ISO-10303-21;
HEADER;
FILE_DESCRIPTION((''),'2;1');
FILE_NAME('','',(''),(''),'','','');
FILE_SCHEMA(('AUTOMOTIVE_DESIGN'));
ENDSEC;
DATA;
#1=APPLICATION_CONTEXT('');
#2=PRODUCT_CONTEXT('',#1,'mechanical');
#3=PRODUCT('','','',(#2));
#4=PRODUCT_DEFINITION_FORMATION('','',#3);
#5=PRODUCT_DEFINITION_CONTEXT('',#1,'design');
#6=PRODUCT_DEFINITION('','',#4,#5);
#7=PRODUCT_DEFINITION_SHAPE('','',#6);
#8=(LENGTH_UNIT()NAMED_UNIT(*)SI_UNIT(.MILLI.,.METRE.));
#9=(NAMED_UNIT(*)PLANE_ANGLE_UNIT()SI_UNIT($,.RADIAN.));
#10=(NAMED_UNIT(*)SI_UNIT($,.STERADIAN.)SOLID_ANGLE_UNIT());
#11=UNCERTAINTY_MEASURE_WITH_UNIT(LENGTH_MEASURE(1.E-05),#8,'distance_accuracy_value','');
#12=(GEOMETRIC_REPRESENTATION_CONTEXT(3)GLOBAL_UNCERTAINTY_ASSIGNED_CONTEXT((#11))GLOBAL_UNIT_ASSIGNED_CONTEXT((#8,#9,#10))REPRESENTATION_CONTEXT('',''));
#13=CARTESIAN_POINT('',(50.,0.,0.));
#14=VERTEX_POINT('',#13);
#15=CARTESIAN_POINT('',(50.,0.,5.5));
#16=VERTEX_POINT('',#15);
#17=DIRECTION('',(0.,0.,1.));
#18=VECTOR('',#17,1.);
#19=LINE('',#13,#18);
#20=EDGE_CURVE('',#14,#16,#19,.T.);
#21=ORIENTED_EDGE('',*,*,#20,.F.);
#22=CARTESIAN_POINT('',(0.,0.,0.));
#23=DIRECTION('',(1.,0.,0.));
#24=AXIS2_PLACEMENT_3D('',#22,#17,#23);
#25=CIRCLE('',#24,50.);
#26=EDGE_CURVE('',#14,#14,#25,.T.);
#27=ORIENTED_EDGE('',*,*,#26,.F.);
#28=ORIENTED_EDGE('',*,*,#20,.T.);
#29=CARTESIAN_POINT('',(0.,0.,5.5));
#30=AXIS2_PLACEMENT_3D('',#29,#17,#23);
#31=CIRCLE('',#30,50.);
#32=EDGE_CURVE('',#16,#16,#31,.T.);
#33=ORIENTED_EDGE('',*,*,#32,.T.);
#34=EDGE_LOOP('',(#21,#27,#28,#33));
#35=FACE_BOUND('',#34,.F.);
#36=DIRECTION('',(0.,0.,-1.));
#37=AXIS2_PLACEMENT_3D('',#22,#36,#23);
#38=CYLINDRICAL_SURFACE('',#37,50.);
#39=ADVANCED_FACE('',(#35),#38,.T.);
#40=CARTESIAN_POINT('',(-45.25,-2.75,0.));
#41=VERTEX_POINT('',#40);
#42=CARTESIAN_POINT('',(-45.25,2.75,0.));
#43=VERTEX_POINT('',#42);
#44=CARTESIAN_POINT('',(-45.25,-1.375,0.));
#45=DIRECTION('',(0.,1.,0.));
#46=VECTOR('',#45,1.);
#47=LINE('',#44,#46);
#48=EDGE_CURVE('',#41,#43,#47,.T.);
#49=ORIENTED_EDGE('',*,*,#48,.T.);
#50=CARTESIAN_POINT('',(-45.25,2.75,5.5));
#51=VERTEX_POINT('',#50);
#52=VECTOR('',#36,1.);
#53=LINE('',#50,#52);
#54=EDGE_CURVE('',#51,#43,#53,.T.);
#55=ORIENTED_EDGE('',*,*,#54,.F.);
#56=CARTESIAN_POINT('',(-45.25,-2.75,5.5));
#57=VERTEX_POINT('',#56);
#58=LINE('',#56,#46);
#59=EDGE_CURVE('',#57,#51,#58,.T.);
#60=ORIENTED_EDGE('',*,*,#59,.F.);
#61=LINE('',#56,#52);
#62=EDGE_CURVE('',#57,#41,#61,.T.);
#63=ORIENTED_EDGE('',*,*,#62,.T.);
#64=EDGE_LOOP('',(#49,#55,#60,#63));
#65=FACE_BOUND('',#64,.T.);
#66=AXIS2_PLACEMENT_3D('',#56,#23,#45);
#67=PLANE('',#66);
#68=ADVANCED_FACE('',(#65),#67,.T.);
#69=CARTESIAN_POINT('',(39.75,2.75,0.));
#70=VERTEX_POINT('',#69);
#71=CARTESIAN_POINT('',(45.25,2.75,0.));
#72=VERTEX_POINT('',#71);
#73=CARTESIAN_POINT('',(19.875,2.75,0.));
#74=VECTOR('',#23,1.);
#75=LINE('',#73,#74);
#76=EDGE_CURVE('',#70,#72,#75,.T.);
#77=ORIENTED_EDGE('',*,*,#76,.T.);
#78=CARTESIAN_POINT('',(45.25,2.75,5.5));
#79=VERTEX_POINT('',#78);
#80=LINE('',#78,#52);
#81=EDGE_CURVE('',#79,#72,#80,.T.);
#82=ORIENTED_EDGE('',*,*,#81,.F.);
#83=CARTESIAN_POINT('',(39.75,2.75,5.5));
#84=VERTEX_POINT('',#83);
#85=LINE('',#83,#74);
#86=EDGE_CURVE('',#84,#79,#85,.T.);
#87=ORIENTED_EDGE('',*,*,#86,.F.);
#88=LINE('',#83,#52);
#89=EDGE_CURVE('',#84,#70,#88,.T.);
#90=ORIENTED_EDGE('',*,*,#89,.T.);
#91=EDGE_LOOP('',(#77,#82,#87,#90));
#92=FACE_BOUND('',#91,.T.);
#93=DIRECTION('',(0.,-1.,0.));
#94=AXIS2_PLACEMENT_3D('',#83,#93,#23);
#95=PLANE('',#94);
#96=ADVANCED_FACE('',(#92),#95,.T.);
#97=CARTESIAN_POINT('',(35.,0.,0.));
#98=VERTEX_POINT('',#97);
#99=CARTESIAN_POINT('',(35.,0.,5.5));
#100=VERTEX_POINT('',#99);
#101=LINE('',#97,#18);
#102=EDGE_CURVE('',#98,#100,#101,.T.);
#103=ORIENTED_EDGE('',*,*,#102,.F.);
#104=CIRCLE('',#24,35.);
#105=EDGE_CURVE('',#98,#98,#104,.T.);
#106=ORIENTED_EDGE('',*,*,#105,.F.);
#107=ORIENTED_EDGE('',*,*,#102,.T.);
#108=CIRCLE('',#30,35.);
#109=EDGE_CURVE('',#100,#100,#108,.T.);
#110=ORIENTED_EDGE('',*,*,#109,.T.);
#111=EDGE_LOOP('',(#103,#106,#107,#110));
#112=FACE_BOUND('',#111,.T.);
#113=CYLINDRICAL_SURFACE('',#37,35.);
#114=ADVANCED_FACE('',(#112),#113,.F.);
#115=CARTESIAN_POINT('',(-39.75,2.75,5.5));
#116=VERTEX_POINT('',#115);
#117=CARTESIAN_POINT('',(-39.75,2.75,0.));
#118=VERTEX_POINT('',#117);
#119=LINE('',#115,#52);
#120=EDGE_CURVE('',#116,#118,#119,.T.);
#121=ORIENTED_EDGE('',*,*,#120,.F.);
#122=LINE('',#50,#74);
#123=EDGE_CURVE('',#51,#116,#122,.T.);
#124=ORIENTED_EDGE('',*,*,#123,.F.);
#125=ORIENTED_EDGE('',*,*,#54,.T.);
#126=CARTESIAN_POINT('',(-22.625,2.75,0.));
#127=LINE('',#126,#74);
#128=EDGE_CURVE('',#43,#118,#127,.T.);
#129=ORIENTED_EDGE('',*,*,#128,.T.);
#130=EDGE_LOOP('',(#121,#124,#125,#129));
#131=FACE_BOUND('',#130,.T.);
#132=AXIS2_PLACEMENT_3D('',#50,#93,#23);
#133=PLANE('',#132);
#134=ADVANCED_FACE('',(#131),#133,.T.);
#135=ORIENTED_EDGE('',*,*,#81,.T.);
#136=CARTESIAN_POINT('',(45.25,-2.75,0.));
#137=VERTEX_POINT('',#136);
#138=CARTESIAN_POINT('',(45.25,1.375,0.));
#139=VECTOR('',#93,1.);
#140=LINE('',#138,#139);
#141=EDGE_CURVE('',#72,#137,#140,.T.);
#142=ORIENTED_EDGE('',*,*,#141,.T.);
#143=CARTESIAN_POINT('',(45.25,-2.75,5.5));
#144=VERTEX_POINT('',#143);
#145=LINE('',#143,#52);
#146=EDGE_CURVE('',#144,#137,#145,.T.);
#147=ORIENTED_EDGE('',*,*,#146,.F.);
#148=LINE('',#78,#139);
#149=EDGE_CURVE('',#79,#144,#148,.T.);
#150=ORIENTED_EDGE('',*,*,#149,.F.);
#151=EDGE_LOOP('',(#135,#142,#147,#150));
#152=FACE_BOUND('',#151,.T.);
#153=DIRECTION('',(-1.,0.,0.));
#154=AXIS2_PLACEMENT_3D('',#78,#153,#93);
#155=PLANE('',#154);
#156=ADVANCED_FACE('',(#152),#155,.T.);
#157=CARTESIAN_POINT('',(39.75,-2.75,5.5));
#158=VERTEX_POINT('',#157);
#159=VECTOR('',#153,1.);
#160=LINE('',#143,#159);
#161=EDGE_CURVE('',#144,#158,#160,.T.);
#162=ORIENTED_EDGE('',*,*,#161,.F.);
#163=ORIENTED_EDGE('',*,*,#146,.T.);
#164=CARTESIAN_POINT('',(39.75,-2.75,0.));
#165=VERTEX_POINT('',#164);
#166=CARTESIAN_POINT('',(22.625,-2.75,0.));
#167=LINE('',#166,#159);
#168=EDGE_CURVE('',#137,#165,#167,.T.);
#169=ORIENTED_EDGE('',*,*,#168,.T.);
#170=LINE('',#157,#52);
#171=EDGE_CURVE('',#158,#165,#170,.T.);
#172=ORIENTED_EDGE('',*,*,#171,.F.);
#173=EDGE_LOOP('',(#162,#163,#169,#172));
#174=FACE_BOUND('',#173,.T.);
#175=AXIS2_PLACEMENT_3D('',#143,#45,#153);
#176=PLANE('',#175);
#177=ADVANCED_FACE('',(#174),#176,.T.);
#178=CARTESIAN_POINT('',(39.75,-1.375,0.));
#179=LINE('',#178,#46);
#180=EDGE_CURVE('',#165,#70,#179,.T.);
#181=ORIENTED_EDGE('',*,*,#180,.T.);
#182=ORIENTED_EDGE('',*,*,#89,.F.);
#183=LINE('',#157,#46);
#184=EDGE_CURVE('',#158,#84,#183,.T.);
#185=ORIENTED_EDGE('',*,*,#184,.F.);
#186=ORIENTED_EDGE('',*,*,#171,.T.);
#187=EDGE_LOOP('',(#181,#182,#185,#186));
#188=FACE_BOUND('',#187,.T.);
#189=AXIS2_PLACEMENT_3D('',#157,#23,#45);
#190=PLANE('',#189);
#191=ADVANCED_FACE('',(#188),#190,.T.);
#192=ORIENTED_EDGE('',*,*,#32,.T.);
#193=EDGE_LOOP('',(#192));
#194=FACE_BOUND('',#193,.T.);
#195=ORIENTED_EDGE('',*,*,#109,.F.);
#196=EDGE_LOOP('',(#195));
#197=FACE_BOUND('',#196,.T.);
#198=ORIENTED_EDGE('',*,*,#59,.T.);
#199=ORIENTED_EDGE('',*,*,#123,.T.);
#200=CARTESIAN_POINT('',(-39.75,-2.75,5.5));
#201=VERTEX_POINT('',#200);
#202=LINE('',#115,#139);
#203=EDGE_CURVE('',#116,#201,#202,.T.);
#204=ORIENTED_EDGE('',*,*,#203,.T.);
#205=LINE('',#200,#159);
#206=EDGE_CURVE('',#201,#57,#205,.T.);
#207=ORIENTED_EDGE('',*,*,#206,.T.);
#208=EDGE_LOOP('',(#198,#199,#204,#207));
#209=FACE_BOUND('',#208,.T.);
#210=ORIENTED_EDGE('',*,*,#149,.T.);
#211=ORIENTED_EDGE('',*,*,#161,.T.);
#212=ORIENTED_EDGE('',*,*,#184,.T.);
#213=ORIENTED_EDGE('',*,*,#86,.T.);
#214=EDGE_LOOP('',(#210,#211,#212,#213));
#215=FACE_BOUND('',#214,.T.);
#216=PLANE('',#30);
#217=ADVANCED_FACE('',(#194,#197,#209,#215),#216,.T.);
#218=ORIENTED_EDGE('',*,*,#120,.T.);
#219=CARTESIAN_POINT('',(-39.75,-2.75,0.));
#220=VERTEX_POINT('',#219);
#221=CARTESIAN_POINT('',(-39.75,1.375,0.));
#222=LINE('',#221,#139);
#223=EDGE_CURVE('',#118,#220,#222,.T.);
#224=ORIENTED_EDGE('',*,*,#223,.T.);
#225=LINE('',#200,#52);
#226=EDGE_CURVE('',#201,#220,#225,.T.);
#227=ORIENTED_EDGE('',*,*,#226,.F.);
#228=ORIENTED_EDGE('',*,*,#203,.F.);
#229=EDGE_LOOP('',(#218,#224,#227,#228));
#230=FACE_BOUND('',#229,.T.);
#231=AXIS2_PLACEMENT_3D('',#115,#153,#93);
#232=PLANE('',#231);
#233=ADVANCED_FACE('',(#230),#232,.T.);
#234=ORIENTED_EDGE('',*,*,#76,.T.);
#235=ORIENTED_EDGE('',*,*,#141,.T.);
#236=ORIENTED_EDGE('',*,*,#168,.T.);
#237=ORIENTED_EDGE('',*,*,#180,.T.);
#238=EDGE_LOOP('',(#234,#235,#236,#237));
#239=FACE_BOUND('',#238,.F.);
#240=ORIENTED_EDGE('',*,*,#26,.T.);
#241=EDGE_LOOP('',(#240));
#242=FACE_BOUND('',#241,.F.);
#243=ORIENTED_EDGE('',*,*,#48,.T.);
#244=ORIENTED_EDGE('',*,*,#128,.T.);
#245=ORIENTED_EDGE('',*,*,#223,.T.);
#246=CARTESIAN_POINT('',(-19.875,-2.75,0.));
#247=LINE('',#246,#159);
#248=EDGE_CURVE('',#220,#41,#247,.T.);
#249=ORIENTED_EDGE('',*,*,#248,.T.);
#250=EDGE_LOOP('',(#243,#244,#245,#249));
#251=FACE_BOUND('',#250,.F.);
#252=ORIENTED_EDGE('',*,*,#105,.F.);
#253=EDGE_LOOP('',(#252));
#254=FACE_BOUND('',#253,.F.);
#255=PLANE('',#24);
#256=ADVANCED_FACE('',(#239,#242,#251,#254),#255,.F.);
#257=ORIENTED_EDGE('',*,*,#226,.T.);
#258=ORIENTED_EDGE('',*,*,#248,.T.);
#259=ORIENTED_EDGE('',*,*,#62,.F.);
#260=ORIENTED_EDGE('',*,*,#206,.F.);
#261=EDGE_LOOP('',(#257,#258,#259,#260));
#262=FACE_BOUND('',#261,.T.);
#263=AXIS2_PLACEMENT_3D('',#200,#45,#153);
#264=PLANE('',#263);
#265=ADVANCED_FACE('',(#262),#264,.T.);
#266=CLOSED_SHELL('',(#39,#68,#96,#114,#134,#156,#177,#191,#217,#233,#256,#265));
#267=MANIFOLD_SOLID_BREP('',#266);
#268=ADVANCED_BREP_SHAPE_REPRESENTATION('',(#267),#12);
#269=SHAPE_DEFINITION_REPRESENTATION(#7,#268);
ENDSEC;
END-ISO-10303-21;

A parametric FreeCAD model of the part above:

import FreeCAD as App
import Part
import Sketcher

doc = App.newDocument("Part")
params = doc.addObject("Spreadsheet::Sheet", "Params")
for row, (alias, value) in enumerate([
    ("sketch1_diameter", "100 mm"),
    ("sketch1_diameter2", "70 mm"),
    ("pad1_length", "5.5 mm"),
    ("sketch2_width", "5.5 mm"),
    ("pocket1_length", "10 mm"),
], start=1):
    params.set(f"A{row}", alias)
    params.set(f"B{row}", "=" + value)
    params.setAlias(f"B{row}", alias)

body = doc.addObject("PartDesign::Body", "Body")

# Sketch on XY plane
sketch1 = body.newObject("Sketcher::SketchObject", "Sketch")
sketch1.AttachmentSupport = (doc.getObject("XY_Plane"), [""])
sketch1.MapMode = "FlatFace"
sketch1.addGeometry([
    Part.Circle(App.Vector(0, 0, 0), App.Vector(0, 0, 1), 50),
    Part.Circle(App.Vector(0, 0, 0), App.Vector(0, 0, 1), 35),
], False)
sketch1.addConstraint([
    Sketcher.Constraint("Coincident", 0, 3, -1, 1),
    Sketcher.Constraint("Coincident", 1, 3, -1, 1),
    Sketcher.Constraint("Diameter", 0, 100.0),
    Sketcher.Constraint("Diameter", 1, 70.0),
])
sketch1.setExpression("Constraints[2]", "Params.sketch1_diameter")
sketch1.setExpression("Constraints[3]", "Params.sketch1_diameter2")
pad1 = body.newObject("PartDesign::Pad", "Pad")
pad1.Profile = sketch1
pad1.setExpression("Length", "Params.pad1_length")

# Sketch on XY plane
sketch2 = body.newObject("Sketcher::SketchObject", "Sketch001")
sketch2.AttachmentSupport = (doc.getObject("XY_Plane"), [""])
sketch2.MapMode = "FlatFace"
sketch2.AttachmentOffset = App.Placement(App.Vector(0, 0, 5.5), App.Rotation())
sketch2.addGeometry([
    Part.LineSegment(App.Vector(45, 3, 0), App.Vector(40, 3, 0)),  # 0
    Part.LineSegment(App.Vector(40, 3, 0), App.Vector(40, -3, 0)),  # 1
    Part.LineSegment(App.Vector(40, -3, 0), App.Vector(45, -3, 0)),  # 2
    Part.LineSegment(App.Vector(45, -3, 0), App.Vector(45, 3, 0)),  # 3
    Part.LineSegment(App.Vector(-45, -3, 0), App.Vector(-40, -3, 0)),  # 4
    Part.LineSegment(App.Vector(-40, -3, 0), App.Vector(-40, 3, 0)),  # 5
    Part.LineSegment(App.Vector(-40, 3, 0), App.Vector(-45, 3, 0)),  # 6
    Part.LineSegment(App.Vector(-45, 3, 0), App.Vector(-45, -3, 0)),  # 7
], False)
sketch2.addConstraint([
    Sketcher.Constraint("Coincident", 0, 2, 1, 1),
    Sketcher.Constraint("Coincident", 1, 2, 2, 1),
    Sketcher.Constraint("Coincident", 2, 2, 3, 1),
    Sketcher.Constraint("Coincident", 3, 2, 0, 1),
    Sketcher.Constraint("Coincident", 4, 2, 5, 1),
    Sketcher.Constraint("Coincident", 5, 2, 6, 1),
    Sketcher.Constraint("Coincident", 6, 2, 7, 1),
    Sketcher.Constraint("Coincident", 7, 2, 4, 1),
    Sketcher.Constraint("Horizontal", 0),
    Sketcher.Constraint("Vertical", 1),
    Sketcher.Constraint("Horizontal", 2),
    Sketcher.Constraint("Vertical", 3),
    Sketcher.Constraint("Horizontal", 4),
    Sketcher.Constraint("Vertical", 5),
    Sketcher.Constraint("Horizontal", 6),
    Sketcher.Constraint("Vertical", 7),
    Sketcher.Constraint("Symmetric", 0, 2, 4, 2, -1, 1),
    Sketcher.Constraint("Symmetric", 2, 2, 6, 2, -1, 1),
    Sketcher.Constraint("Horizontal", 2, 2, 4, 2),
    Sketcher.Constraint("Equal", 6, 1),
    Sketcher.Constraint("DistanceX", 0, 2, 0, 1, 5.5),
    Sketcher.Constraint("DistanceX", 4, 2, 2, 2, 85.0),
])
sketch2.setExpression("Constraints[20]", "Params.sketch2_width")
pocket1 = body.newObject("PartDesign::Pocket", "Pocket")
pocket1.Profile = sketch2
pocket1.setExpression("Length", "Params.pocket1_length")

doc.recompute()
